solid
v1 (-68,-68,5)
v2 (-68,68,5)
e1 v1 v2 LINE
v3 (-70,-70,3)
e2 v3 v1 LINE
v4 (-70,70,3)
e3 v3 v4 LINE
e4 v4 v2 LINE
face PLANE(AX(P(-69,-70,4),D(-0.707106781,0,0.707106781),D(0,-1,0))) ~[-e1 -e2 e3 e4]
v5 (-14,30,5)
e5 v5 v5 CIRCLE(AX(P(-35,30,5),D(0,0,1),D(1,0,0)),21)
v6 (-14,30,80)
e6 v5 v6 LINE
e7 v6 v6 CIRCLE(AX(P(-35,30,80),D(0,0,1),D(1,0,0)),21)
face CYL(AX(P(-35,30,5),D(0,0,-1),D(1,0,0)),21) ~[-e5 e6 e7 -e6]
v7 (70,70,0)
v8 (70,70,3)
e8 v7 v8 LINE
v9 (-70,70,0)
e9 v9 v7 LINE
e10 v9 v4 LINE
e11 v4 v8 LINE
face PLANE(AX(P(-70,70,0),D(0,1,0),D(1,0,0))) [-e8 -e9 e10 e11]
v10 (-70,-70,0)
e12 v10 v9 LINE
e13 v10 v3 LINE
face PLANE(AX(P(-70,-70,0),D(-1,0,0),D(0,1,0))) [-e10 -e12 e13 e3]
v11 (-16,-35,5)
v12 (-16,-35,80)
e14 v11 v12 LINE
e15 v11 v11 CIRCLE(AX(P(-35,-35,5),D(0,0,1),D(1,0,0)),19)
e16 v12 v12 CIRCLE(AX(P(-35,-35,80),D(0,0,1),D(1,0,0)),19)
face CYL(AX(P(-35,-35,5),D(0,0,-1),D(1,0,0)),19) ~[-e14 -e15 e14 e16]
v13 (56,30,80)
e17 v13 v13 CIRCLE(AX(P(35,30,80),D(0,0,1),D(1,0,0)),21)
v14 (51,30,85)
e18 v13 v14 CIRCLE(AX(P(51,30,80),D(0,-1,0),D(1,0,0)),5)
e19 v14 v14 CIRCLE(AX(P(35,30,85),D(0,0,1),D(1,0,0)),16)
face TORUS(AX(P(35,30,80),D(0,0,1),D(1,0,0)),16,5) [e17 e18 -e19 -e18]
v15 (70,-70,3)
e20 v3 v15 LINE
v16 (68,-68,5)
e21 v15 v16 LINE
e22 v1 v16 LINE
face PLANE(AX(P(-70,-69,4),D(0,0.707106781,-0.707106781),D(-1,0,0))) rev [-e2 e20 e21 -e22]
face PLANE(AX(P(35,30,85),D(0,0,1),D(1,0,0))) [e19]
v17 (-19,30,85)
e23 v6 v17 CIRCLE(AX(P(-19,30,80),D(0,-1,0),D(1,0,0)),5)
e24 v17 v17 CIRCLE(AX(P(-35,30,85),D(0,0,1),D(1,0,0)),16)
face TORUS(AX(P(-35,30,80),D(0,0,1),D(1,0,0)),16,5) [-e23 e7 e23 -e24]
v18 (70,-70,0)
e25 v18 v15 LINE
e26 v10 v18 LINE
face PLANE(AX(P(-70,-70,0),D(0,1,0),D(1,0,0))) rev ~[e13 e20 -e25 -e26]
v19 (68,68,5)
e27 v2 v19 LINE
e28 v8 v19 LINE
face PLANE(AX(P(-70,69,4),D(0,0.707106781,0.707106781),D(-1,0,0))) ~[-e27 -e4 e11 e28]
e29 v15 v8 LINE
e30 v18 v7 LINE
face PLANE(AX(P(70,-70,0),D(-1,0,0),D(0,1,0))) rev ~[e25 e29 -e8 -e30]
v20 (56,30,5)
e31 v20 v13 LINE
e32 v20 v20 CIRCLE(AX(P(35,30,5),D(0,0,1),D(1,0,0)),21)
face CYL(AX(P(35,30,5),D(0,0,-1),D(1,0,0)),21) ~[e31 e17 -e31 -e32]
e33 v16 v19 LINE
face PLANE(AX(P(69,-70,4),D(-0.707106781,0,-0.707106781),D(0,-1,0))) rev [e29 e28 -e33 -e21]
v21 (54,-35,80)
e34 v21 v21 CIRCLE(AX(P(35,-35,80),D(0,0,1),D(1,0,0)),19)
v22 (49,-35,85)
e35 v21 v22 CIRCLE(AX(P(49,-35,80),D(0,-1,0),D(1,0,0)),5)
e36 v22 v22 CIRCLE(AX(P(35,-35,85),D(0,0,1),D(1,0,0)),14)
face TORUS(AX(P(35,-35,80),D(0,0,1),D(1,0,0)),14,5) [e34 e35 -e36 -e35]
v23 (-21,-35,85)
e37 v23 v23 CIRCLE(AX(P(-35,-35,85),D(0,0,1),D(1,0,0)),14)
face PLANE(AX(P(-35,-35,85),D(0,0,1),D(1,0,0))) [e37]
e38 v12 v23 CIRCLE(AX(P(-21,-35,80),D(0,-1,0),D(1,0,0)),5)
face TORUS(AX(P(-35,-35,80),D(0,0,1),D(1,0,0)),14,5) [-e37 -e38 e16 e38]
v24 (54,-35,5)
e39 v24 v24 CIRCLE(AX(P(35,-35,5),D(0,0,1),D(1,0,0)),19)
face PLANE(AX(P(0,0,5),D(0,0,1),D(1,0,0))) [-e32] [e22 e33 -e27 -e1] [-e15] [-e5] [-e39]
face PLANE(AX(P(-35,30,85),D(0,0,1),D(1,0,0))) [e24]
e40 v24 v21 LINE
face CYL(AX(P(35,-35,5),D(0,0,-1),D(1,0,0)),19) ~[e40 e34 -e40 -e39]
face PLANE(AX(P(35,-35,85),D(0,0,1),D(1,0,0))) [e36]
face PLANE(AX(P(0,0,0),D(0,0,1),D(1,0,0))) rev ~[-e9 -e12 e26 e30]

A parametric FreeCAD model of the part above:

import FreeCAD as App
import Part
import Sketcher
from FreeCAD import Vector
Q = App.Units.Quantity


def edges_at(feature, points):
    """Names of the edges that pass closest to the given points."""
    edges = feature.Shape.Edges
    near = lambda p: min(range(len(edges)), key=lambda i: edges[i].distToShape(Part.Vertex(*p))[0])
    return sorted({f"Edge{near(p) + 1}" for p in points})


def add_polygon(sketch, points):
    """Adds a closed chain of lines whose ends are joined by coincident constraints."""
    first, n = sketch.GeometryCount, len(points)
    for a, b in zip(points, points[1:] + points[:1]):
        sketch.addGeometry(Part.LineSegment(App.Vector(*a, 0), App.Vector(*b, 0)), False)
    for i in range(n):
        sketch.addConstraint(Sketcher.Constraint("Coincident", first + i, 2, first + (i + 1) % n, 1))

doc = App.newDocument("Part")
body = doc.addObject("PartDesign::Body", "Body")

# Sketch on XY plane
sketch1 = doc.addObject("Sketcher::SketchObject", "Sketch")
body.addObject(sketch1)
sketch1.AttachmentSupport = (doc.XY_Plane, [""])
sketch1.MapMode = "FlatFace"
add_polygon(sketch1, [(-70, 70), (-70, -70), (70, -70), (70, 70)])  # lines 0-3
sketch1.addConstraint(Sketcher.Constraint("Vertical", 0))
sketch1.addConstraint(Sketcher.Constraint("Horizontal", 1))
sketch1.addConstraint(Sketcher.Constraint("Vertical", 2))
sketch1.addConstraint(Sketcher.Constraint("Horizontal", 3))
sketch1.addConstraint(Sketcher.Constraint("Symmetric", 0, 2, 2, 2, -1, 1))
sketch1.addConstraint(Sketcher.Constraint("Equal", 3, 0))
sketch1.addConstraint(Sketcher.Constraint("DistanceX", 1, 1, 1, 2, Q("140 mm")))
pad1 = doc.addObject("PartDesign::Pad", "Pad")
body.addObject(pad1)
pad1.Profile = sketch1
pad1.Length = 5
doc.recompute()

chamfer = doc.addObject("PartDesign::Chamfer", "Chamfer")
body.addObject(chamfer)
chamfer.Base = (pad1, edges_at(pad1, [
    (0, -70, 5),
    (0, 70, 5),
    (-70, 0, 5),
    (70, 0, 5),
]))
chamfer.Size = 2

# Sketch on XY plane
sketch2 = doc.addObject("Sketcher::SketchObject", "Sketch001")
body.addObject(sketch2)
sketch2.AttachmentSupport = (doc.XY_Plane, [""])
sketch2.MapMode = "FlatFace"
sketch2.AttachmentOffset = App.Placement(Vector(0, 0, 5), App.Rotation())
sketch2.addGeometry(Part.Circle(Vector(-35, 30, 0), Vector(0, 0, 1), 21), False)
sketch2.addGeometry(Part.Circle(Vector(35, 30, 0), Vector(0, 0, 1), 21), False)
sketch2.addGeometry(Part.Circle(Vector(-35, -35, 0), Vector(0, 0, 1), 19), False)
sketch2.addGeometry(Part.Circle(Vector(35, -35, 0), Vector(0, 0, 1), 19), False)
sketch2.addConstraint(Sketcher.Constraint("Equal", 0, 1))
sketch2.addConstraint(Sketcher.Constraint("Equal", 2, 3))
sketch2.addConstraint(Sketcher.Constraint("Symmetric", 0, 3, 1, 3, -2))
sketch2.addConstraint(Sketcher.Constraint("Symmetric", 2, 3, 3, 3, -2))
sketch2.addConstraint(Sketcher.Constraint("Vertical", 0, 3, 2, 3))
sketch2.addConstraint(Sketcher.Constraint("Diameter", 0, Q("42 mm")))
sketch2.addConstraint(Sketcher.Constraint("Diameter", 2, Q("38 mm")))
sketch2.addConstraint(Sketcher.Constraint("DistanceX", 0, 3, -1, 1, Q("35 mm")))
sketch2.addConstraint(Sketcher.Constraint("DistanceY", -1, 1, 0, 3, Q("30 mm")))
sketch2.addConstraint(Sketcher.Constraint("DistanceY", 2, 3, -1, 1, Q("35 mm")))
pad2 = doc.addObject("PartDesign::Pad", "Pad001")
body.addObject(pad2)
pad2.Profile = sketch2
pad2.Length = 80
doc.recompute()

fillet = doc.addObject("PartDesign::Fillet", "Fillet")
body.addObject(fillet)
fillet.Base = (pad2, edges_at(pad2, [
    (-56, 30, 85),
    (14, 30, 85),
    (-54, -35, 85),
    (16, -35, 85),
]))
fillet.Radius = 5

doc.recompute()
